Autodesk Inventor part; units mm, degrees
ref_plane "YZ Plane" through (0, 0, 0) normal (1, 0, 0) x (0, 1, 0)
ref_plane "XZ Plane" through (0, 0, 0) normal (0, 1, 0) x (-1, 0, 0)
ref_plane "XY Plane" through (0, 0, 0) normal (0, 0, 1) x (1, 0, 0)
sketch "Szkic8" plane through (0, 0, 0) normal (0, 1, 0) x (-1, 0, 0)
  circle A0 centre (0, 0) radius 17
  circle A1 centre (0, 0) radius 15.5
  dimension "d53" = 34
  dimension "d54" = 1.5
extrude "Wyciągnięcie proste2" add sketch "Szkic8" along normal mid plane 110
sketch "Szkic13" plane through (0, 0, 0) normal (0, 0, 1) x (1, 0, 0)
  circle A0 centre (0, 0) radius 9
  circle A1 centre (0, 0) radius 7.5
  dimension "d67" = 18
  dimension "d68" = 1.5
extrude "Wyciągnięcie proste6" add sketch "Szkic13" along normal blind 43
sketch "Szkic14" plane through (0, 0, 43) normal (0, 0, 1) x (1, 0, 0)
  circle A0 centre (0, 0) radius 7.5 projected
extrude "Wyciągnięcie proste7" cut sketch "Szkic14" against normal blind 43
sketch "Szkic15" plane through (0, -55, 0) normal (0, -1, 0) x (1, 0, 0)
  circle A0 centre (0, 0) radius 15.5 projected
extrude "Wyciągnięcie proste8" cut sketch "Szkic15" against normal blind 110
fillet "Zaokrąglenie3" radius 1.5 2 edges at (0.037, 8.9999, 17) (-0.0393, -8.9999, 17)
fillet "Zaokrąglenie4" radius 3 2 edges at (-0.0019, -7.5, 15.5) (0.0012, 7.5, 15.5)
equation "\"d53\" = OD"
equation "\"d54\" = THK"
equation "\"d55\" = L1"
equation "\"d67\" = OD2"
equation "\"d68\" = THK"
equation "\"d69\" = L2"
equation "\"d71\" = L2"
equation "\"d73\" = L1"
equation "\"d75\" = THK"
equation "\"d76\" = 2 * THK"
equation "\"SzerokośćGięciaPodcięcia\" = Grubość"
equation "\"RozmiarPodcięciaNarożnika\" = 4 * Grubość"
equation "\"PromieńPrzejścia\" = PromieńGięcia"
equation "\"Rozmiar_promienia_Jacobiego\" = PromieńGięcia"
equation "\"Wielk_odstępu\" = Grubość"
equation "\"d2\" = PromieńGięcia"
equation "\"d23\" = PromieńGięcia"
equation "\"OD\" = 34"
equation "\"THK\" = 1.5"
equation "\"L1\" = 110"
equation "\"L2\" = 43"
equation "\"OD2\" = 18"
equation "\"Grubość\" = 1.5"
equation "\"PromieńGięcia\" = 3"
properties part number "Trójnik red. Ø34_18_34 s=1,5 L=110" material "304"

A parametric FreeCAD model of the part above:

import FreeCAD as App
import Part
import Sketcher


def edges_at(feature, points):
    """Names of the edges that pass closest to the given points."""
    edges = feature.Shape.Edges
    near = lambda p: min(range(len(edges)), key=lambda i: edges[i].distToShape(Part.Vertex(*p))[0])
    return sorted({f"Edge{near(p) + 1}" for p in points})

doc = App.newDocument("Part")
params = doc.addObject("Spreadsheet::Sheet", "Params")
for row, (alias, value) in enumerate([
    ("sketch1_diameter", "34 mm"),
    ("sketch1_diameter2", "31 mm"),
    ("pad1_length", "110 mm"),
    ("sketch2_diameter", "18 mm"),
    ("sketch2_diameter2", "15 mm"),
    ("pad2_length", "43 mm"),
    ("sketch3_diameter", "15 mm"),
    ("pocket1_length", "43 mm"),
    ("sketch4_diameter", "31 mm"),
    ("pocket2_length", "110 mm"),
    ("fillet_radius", "1.5 mm"),
    ("fillet2_radius", "3 mm"),
], start=1):
    params.set(f"A{row}", alias)
    params.set(f"B{row}", "=" + value)
    params.setAlias(f"B{row}", alias)

body = doc.addObject("PartDesign::Body", "Body")

sketch1 = doc.addObject("Sketcher::SketchObject", "Sketch")
body.addObject(sketch1)
sketch1.AttachmentSupport = (doc.XZ_Plane, [""])
sketch1.MapMode = "FlatFace"
sketch1.addGeometry([
    Part.Circle(App.Vector(0, 0, 0), App.Vector(0, 0, 1), 17),
    Part.Circle(App.Vector(0, 0, 0), App.Vector(0, 0, 1), 15.5),
], False)
sketch1.addConstraint([
    Sketcher.Constraint("Coincident", 0, 3, -1, 1),
    Sketcher.Constraint("Coincident", 1, 3, -1, 1),
    Sketcher.Constraint("Diameter", 0, 34.0),
    Sketcher.Constraint("Diameter", 1, 31.0),
])
sketch1.setExpression("Constraints[2]", "Params.sketch1_diameter")
sketch1.setExpression("Constraints[3]", "Params.sketch1_diameter2")
pad1 = doc.addObject("PartDesign::Pad", "Pad")
body.addObject(pad1)
pad1.Profile = sketch1
pad1.setExpression("Length", "Params.pad1_length")
pad1.Midplane = True

sketch2 = doc.addObject("Sketcher::SketchObject", "Sketch001")
body.addObject(sketch2)
sketch2.AttachmentSupport = (doc.XY_Plane, [""])
sketch2.MapMode = "FlatFace"
sketch2.addGeometry([
    Part.Circle(App.Vector(0, 0, 0), App.Vector(0, 0, 1), 9),
    Part.Circle(App.Vector(0, 0, 0), App.Vector(0, 0, 1), 7.5),
], False)
sketch2.addConstraint([
    Sketcher.Constraint("Coincident", 0, 3, -1, 1),
    Sketcher.Constraint("Coincident", 1, 3, -1, 1),
    Sketcher.Constraint("Diameter", 0, 18.0),
    Sketcher.Constraint("Diameter", 1, 15.0),
])
sketch2.setExpression("Constraints[2]", "Params.sketch2_diameter")
sketch2.setExpression("Constraints[3]", "Params.sketch2_diameter2")
pad2 = doc.addObject("PartDesign::Pad", "Pad001")
body.addObject(pad2)
pad2.Profile = sketch2
pad2.setExpression("Length", "Params.pad2_length")

sketch3 = doc.addObject("Sketcher::SketchObject", "Sketch002")
body.addObject(sketch3)
sketch3.AttachmentSupport = (doc.XY_Plane, [""])
sketch3.MapMode = "FlatFace"
sketch3.AttachmentOffset = App.Placement(App.Vector(0, 0, 43), App.Rotation())
sketch3.addGeometry(Part.Circle(App.Vector(0, 0, 0), App.Vector(0, 0, 1), 7.5), False)
sketch3.addConstraint([
    Sketcher.Constraint("Coincident", 0, 3, -1, 1),
    Sketcher.Constraint("Diameter", 0, 15.0),
])
sketch3.setExpression("Constraints[1]", "Params.sketch3_diameter")
pocket1 = doc.addObject("PartDesign::Pocket", "Pocket")
body.addObject(pocket1)
pocket1.Profile = sketch3
pocket1.setExpression("Length", "Params.pocket1_length")

sketch4 = doc.addObject("Sketcher::SketchObject", "Sketch003")
body.addObject(sketch4)
sketch4.AttachmentSupport = (doc.XZ_Plane, [""])
sketch4.MapMode = "FlatFace"
sketch4.AttachmentOffset = App.Placement(App.Vector(0, 0, 55), App.Rotation())
sketch4.addGeometry(Part.Circle(App.Vector(0, 0, 0), App.Vector(0, 0, 1), 15.5), False)
sketch4.addConstraint([
    Sketcher.Constraint("Coincident", 0, 3, -1, 1),
    Sketcher.Constraint("Diameter", 0, 31.0),
])
sketch4.setExpression("Constraints[1]", "Params.sketch4_diameter")
pocket2 = doc.addObject("PartDesign::Pocket", "Pocket001")
body.addObject(pocket2)
pocket2.Profile = sketch4
pocket2.setExpression("Length", "Params.pocket2_length")
doc.recompute()

fillet = doc.addObject("PartDesign::Fillet", "Fillet")
body.addObject(fillet)
fillet.Base = (pocket2, edges_at(pocket2, [(0.037, 9, 17), (-0.039, -9, 17)]))
fillet.setExpression("Radius", "Params.fillet_radius")
doc.recompute()

fillet2 = doc.addObject("PartDesign::Fillet", "Fillet001")
body.addObject(fillet2)
fillet2.Base = (fillet, edges_at(fillet, [(-0.002, -7.5, 15.5), (0.001, 7.5, 15.5)]))
fillet2.setExpression("Radius", "Params.fillet2_radius")

doc.recompute()
